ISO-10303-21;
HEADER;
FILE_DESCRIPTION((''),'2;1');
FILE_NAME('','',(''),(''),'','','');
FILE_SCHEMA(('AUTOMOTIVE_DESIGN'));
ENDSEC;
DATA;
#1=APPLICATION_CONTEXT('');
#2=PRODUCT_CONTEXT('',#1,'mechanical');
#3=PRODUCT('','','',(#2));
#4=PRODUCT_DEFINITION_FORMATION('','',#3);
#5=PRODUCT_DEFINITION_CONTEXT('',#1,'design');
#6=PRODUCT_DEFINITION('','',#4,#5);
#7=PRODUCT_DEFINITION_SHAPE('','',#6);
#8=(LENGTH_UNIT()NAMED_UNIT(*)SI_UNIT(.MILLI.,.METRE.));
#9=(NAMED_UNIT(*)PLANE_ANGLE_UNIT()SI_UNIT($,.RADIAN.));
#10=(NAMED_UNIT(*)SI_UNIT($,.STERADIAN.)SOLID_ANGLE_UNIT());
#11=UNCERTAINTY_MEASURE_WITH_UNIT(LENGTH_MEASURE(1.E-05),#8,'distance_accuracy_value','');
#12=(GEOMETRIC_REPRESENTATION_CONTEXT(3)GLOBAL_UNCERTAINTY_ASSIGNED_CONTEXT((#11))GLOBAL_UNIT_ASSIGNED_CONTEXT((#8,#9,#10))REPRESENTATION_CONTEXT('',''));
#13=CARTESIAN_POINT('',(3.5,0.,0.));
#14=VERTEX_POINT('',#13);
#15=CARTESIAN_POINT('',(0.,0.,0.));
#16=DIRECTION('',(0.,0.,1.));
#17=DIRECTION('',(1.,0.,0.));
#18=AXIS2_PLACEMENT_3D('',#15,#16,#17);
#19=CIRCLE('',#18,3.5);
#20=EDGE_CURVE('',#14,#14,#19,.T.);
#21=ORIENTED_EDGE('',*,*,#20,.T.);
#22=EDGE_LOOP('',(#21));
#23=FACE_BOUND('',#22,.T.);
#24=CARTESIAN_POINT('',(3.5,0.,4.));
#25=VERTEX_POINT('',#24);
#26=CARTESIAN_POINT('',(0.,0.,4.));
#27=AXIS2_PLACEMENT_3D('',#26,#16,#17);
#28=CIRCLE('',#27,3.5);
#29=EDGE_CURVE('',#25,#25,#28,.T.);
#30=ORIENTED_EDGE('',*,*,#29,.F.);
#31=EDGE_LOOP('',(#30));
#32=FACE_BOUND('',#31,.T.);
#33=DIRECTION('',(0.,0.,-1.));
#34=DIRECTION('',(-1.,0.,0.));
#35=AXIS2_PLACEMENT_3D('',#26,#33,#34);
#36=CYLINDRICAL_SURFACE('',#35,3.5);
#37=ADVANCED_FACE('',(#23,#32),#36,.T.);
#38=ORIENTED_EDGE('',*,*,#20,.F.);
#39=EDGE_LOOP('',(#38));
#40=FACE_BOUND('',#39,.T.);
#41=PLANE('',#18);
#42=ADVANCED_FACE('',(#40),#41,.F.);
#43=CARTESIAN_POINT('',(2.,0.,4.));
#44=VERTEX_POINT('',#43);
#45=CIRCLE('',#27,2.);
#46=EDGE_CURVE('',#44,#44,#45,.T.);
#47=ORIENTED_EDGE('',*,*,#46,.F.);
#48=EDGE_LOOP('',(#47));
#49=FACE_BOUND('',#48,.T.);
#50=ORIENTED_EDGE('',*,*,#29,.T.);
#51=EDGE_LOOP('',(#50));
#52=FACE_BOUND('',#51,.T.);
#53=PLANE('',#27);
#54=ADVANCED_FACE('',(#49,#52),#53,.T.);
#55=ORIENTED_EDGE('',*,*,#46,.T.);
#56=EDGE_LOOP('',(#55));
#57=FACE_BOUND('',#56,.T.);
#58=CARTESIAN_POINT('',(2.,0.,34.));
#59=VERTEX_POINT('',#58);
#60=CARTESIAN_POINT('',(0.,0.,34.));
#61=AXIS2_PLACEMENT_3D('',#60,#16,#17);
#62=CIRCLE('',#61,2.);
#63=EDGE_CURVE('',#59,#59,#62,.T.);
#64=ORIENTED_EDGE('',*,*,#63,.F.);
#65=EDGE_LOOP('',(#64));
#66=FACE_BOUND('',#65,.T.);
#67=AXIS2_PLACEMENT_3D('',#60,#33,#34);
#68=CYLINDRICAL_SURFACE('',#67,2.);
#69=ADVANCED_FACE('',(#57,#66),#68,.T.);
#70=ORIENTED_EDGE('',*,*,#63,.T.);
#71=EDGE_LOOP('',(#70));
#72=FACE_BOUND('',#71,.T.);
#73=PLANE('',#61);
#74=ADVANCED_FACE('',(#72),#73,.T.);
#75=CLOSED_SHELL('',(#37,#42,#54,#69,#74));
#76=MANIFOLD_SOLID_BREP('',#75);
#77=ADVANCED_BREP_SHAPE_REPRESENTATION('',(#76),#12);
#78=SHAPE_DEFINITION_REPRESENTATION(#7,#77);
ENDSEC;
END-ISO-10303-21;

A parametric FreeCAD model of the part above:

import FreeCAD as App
import Part
import Sketcher

V = App.Vector
Q = App.Units.Quantity

doc = App.newDocument("Part")
body = doc.addObject("PartDesign::Body", "Body")

# Sketch on XY plane
sketch1 = body.newObject("Sketcher::SketchObject", "Sketch")
sketch1.AttachmentSupport = (doc.getObject("XY_Plane"), [""])
sketch1.MapMode = "FlatFace"
sketch1.addGeometry(Part.Circle(V(0, 0, 0), V(0, 0, 1), 3.5), False)
sketch1.addConstraint([
    Sketcher.Constraint("Coincident", 0, 3, -1, 1),
    Sketcher.Constraint("Diameter", 0, Q("7 mm")),
])
pad1 = body.newObject("PartDesign::Pad", "Pad")
pad1.Profile = sketch1
pad1.Length = 4

# Sketch on XY plane
sketch2 = body.newObject("Sketcher::SketchObject", "Sketch001")
sketch2.AttachmentSupport = (doc.getObject("XY_Plane"), [""])
sketch2.MapMode = "FlatFace"
sketch2.AttachmentOffset = App.Placement(V(0, 0, 4), App.Rotation())
sketch2.addGeometry(Part.Circle(V(0, 0, 0), V(0, 0, 1), 2), False)
sketch2.addConstraint([
    Sketcher.Constraint("Coincident", 0, 3, -1, 1),
    Sketcher.Constraint("Diameter", 0, Q("4 mm")),
])
pad2 = body.newObject("PartDesign::Pad", "Pad001")
pad2.Profile = sketch2
pad2.Length = 30

doc.recompute()
